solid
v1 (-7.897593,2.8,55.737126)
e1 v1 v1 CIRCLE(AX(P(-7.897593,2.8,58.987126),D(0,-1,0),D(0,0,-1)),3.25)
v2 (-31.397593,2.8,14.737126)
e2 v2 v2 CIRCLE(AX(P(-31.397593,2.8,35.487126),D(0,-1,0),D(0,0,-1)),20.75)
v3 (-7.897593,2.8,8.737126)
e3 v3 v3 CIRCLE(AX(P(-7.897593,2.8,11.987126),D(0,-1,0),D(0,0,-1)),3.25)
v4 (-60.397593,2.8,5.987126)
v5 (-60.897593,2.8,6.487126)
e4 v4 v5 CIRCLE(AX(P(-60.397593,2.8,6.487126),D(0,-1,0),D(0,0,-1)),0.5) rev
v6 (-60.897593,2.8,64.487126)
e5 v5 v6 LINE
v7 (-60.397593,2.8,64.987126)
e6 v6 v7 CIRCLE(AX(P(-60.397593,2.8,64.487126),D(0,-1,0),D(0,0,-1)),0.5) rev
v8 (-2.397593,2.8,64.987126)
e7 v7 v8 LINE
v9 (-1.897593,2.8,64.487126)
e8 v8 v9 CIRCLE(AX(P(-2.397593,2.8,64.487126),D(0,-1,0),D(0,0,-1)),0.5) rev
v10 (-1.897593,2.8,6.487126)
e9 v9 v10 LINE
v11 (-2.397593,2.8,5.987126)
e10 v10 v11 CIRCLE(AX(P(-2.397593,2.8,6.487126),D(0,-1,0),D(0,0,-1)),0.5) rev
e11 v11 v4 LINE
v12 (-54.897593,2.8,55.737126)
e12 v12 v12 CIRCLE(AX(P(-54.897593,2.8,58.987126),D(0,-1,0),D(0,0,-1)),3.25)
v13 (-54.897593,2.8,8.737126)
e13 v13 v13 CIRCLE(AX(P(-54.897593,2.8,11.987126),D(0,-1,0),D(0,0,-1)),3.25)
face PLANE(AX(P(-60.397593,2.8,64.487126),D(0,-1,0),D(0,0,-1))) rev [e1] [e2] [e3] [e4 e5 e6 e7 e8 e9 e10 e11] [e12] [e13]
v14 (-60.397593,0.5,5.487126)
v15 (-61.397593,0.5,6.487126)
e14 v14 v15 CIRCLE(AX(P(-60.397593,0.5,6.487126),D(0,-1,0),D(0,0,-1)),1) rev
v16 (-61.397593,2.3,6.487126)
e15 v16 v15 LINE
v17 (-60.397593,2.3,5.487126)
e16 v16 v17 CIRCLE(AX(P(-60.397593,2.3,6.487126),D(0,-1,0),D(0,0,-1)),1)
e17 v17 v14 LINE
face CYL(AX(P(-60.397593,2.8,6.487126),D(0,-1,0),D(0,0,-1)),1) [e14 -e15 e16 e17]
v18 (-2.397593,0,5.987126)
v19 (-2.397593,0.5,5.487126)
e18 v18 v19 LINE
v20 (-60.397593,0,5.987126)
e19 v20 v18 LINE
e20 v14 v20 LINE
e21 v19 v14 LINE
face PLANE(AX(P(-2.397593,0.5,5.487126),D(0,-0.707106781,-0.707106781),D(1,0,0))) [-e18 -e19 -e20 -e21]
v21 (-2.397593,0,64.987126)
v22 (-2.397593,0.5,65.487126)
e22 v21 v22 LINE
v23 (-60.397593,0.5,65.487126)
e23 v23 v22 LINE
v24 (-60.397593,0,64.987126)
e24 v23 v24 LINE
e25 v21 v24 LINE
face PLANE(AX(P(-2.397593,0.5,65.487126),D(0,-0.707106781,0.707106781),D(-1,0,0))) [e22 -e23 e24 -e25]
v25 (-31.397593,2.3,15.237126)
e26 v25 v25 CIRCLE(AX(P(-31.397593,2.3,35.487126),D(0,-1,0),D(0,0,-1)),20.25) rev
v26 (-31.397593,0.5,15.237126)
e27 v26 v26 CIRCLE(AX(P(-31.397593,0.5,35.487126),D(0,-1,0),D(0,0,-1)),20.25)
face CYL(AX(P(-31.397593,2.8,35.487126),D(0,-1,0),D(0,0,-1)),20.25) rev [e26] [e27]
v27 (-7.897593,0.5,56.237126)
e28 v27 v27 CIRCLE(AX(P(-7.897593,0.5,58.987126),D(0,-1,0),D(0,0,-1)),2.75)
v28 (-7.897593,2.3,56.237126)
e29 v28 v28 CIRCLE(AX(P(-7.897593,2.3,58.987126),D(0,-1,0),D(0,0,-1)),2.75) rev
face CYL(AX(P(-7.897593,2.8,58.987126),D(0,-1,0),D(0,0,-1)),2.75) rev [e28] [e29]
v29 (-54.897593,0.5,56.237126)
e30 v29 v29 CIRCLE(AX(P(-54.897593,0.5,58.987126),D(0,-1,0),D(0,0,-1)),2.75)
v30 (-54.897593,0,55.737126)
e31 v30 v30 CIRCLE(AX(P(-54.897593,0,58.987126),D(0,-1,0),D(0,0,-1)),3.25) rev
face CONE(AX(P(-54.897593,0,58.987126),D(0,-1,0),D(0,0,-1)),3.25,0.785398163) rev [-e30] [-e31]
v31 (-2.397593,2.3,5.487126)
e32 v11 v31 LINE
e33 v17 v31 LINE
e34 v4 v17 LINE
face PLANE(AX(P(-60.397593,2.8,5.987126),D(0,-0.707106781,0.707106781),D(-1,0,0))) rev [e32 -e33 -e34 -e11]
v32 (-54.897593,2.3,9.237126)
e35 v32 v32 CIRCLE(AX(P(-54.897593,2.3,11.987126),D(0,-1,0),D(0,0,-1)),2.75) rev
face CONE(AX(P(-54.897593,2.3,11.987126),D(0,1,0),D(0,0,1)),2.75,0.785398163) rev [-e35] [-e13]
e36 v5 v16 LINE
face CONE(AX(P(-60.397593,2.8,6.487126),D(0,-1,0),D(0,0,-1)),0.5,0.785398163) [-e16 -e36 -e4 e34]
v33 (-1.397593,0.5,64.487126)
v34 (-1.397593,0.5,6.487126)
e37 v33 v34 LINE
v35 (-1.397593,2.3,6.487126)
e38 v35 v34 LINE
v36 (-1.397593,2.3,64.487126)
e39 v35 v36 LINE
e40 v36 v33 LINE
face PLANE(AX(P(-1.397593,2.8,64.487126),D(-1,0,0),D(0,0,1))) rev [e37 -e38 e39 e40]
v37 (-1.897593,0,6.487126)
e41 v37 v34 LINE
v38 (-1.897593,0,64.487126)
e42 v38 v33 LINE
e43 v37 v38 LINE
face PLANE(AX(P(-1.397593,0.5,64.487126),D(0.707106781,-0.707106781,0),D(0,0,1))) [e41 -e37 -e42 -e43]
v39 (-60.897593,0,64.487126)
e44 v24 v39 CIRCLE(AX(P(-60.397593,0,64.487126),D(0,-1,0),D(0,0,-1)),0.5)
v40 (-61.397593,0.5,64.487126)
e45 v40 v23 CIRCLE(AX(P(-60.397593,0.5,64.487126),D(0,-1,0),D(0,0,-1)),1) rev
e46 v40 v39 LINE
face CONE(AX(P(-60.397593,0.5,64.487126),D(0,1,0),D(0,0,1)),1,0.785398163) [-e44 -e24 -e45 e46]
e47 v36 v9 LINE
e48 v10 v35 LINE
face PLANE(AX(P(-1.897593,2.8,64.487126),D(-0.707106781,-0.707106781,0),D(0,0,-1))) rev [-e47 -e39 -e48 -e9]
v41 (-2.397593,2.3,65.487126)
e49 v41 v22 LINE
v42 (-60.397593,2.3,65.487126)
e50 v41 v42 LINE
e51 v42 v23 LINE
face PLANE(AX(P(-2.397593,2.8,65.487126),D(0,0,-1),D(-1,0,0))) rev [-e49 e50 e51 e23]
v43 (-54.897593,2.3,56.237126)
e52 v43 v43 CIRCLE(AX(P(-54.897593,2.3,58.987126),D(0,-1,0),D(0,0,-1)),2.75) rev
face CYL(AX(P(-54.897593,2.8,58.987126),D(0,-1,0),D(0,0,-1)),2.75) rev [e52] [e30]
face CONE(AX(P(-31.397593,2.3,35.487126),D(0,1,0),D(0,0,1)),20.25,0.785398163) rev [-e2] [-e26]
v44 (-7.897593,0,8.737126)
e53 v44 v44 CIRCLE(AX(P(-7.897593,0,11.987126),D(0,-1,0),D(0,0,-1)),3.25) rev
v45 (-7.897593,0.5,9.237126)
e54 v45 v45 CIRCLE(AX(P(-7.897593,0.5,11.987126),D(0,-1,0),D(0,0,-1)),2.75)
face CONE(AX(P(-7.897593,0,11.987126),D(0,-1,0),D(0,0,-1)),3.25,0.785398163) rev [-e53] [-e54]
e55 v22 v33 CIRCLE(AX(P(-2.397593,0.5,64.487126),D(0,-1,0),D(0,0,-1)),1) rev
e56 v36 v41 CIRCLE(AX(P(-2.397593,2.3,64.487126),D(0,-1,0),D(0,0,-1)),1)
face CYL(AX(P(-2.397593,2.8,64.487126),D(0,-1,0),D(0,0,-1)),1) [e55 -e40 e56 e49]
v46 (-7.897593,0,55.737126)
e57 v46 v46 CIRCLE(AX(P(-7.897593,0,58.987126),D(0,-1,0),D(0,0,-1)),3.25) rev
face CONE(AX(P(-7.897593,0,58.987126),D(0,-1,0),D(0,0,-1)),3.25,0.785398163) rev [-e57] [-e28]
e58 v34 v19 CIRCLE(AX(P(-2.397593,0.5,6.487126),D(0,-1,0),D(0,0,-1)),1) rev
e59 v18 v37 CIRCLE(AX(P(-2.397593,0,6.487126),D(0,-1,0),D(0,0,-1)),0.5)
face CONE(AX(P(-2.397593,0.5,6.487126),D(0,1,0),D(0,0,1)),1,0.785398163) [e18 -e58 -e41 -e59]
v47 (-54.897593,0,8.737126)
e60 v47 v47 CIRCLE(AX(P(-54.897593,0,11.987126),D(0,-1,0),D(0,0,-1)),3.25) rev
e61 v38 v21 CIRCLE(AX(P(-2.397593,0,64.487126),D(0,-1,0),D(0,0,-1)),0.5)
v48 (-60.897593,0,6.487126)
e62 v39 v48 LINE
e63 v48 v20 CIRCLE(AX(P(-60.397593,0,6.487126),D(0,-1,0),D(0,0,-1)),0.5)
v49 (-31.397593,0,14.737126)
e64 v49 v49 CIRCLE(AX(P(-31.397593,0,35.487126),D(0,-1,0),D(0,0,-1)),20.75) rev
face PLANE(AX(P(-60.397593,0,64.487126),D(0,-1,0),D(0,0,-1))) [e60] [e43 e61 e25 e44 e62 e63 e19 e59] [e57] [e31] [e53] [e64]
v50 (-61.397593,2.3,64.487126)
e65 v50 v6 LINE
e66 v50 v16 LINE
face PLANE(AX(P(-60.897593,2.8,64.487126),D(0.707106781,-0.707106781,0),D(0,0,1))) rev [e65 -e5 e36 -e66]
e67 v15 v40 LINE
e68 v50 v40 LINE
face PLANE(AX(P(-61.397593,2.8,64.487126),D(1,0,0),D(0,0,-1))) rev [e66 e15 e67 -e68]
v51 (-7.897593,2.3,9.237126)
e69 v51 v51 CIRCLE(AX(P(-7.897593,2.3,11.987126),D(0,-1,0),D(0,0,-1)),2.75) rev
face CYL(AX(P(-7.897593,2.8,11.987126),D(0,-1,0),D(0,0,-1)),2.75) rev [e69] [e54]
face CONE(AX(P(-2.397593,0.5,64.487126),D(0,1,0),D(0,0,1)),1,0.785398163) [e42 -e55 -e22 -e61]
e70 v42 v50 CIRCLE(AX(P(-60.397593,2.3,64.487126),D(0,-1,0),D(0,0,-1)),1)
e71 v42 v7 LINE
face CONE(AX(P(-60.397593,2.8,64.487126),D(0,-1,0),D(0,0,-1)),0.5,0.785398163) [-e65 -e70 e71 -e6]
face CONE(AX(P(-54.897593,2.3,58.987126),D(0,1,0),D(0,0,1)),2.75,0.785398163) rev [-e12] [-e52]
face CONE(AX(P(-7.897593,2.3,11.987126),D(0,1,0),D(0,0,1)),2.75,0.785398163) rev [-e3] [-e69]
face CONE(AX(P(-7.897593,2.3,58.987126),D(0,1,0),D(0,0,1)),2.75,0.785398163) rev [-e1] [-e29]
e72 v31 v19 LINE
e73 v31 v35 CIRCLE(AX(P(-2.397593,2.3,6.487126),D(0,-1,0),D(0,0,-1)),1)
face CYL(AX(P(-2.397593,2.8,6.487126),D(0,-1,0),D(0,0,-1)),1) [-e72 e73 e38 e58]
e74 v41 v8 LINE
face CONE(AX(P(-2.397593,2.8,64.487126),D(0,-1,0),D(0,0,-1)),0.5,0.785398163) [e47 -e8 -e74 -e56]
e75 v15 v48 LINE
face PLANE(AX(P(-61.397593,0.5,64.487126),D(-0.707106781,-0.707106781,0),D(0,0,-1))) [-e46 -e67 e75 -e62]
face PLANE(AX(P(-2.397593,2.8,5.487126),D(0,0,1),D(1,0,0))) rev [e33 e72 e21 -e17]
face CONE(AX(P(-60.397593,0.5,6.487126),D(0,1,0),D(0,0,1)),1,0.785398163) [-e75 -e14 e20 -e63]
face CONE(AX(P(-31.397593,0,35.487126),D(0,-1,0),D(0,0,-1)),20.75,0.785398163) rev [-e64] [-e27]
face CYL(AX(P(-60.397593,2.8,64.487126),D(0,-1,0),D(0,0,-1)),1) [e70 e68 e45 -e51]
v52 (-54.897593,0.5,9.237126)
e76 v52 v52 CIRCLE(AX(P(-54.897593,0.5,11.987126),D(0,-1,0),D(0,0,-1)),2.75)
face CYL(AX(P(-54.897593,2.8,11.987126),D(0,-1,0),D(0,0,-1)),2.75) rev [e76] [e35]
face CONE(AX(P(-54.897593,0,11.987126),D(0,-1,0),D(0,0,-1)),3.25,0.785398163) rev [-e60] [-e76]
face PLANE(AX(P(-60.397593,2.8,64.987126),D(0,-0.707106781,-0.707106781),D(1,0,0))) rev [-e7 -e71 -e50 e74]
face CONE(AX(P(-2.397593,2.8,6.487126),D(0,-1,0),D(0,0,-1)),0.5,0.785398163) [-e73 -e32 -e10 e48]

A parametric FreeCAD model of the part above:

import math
import FreeCAD as App
import Part
import Sketcher
from FreeCAD import Vector
Q = App.Units.Quantity


def edges_at(feature, points):
    """Names of the edges that pass closest to the given points."""
    edges = feature.Shape.Edges
    near = lambda p: min(range(len(edges)), key=lambda i: edges[i].distToShape(Part.Vertex(*p))[0])
    return sorted({f"Edge{near(p) + 1}" for p in points})

doc = App.newDocument("Part")
body = doc.addObject("PartDesign::Body", "Body")

# Sketch on XZ plane
sketch1 = doc.addObject("Sketcher::SketchObject", "Sketch")
body.addObject(sketch1)
sketch1.AttachmentSupport = (doc.XZ_Plane, [""])
sketch1.MapMode = "FlatFace"
sketch1.addGeometry([
    Part.LineSegment(Vector(-60.4, 65.5, 0), Vector(-2.4, 65.5, 0)),  # 0
    Part.ArcOfCircle(Part.Circle(Vector(-2.4, 64.5, 0), Vector(0, 0, 1), 1), math.radians(0), math.radians(90)),  # 1
    Part.LineSegment(Vector(-1.4, 64.5, 0), Vector(-1.4, 6.5, 0)),  # 2
    Part.ArcOfCircle(Part.Circle(Vector(-2.4, 6.5, 0), Vector(0, 0, 1), 1), math.radians(-90), math.radians(0)),  # 3
    Part.LineSegment(Vector(-2.4, 5.5, 0), Vector(-60.4, 5.5, 0)),  # 4
    Part.ArcOfCircle(Part.Circle(Vector(-60.4, 6.5, 0), Vector(0, 0, 1), 1), math.radians(180), math.radians(270)),  # 5
    Part.LineSegment(Vector(-61.4, 6.5, 0), Vector(-61.4, 64.5, 0)),  # 6
    Part.ArcOfCircle(Part.Circle(Vector(-60.4, 64.5, 0), Vector(0, 0, 1), 1), math.radians(90), math.radians(180)),  # 7
    Part.Circle(Vector(-7.9, 59, 0), Vector(0, 0, 1), 2.8),  # 8
    Part.Circle(Vector(-54.9, 59, 0), Vector(0, 0, 1), 2.8),  # 9
    Part.Circle(Vector(-7.9, 12, 0), Vector(0, 0, 1), 2.8),  # 10
    Part.Circle(Vector(-31.4, 35.5, 0), Vector(0, 0, 1), 20.2),  # 11
    Part.Circle(Vector(-54.9, 12, 0), Vector(0, 0, 1), 2.8),  # 12
], False)
sketch1.addConstraint([
    Sketcher.Constraint("Tangent", 0, 2, 1, 2),
    Sketcher.Constraint("Tangent", 1, 1, 2, 1),
    Sketcher.Constraint("Tangent", 2, 2, 3, 2),
    Sketcher.Constraint("Tangent", 3, 1, 4, 1),
    Sketcher.Constraint("Tangent", 4, 2, 5, 2),
    Sketcher.Constraint("Tangent", 5, 1, 6, 1),
    Sketcher.Constraint("Tangent", 6, 2, 7, 2),
    Sketcher.Constraint("Tangent", 7, 1, 0, 1),
    Sketcher.Constraint("Horizontal", 0),
    Sketcher.Constraint("Vertical", 2),
    Sketcher.Constraint("Horizontal", 4),
    Sketcher.Constraint("Vertical", 6),
    Sketcher.Constraint("Equal", 1, 3),
    Sketcher.Constraint("Equal", 3, 5),
    Sketcher.Constraint("Equal", 5, 7),
    Sketcher.Constraint("Equal", 8, 9),
    Sketcher.Constraint("Equal", 9, 10),
    Sketcher.Constraint("Equal", 10, 12),
    Sketcher.Constraint("Horizontal", 8, 3, 9, 3),
    Sketcher.Constraint("Horizontal", 10, 3, 12, 3),
    Sketcher.Constraint("Vertical", 8, 3, 10, 3),
    Sketcher.Constraint("Vertical", 9, 3, 12, 3),
    Sketcher.Constraint("Equal", 4, 2),
    Sketcher.Constraint("Radius", 1, Q("1 mm")),
    Sketcher.Constraint("Diameter", 8, Q("5.5 mm")),
    Sketcher.Constraint("Diameter", 11, Q("40.5 mm")),
    Sketcher.Constraint("DistanceX", 0, 1, 0, 2, Q("58 mm")),
    Sketcher.Constraint("DistanceX", 9, 3, 8, 3, Q("47 mm")),
    Sketcher.Constraint("DistanceY", 10, 3, 8, 3, Q("47 mm")),
    Sketcher.Constraint("DistanceX", 11, 3, 3, 3, Q("29 mm")),
    Sketcher.Constraint("DistanceY", 3, 3, 11, 3, Q("29 mm")),
    Sketcher.Constraint("DistanceX", 8, 3, 1, 3, Q("5.5 mm")),
    Sketcher.Constraint("DistanceY", 8, 3, 1, 3, Q("5.5 mm")),
    Sketcher.Constraint("DistanceX", 1, 3, -1, 1, Q("2.397593 mm")),
    Sketcher.Constraint("DistanceY", -1, 1, 1, 3, Q("64.487126 mm")),
])
pad1 = doc.addObject("PartDesign::Pad", "Pad")
body.addObject(pad1)
pad1.Profile = sketch1
pad1.Length = 2.8
pad1.Reversed = True
doc.recompute()

chamfer = doc.addObject("PartDesign::Chamfer", "Chamfer")
body.addObject(chamfer)
chamfer.Base = (pad1, edges_at(pad1, [
    (-1.398, 0, 35.487),
    (-1.69, 0, 65.194),
    (-31.398, 0, 65.487),
    (-61.105, 0, 65.194),
    (-1.69, 2.8, 65.194),
    (-1.398, 2.8, 35.487),
    (-1.69, 2.8, 5.78),
    (-51.648, 0, 35.487),
    (-51.648, 2.8, 35.487),
    (-31.398, 2.8, 5.487),
    (-57.648, 0, 11.987),
    (-57.648, 2.8, 11.987),
    (-61.105, 2.8, 5.78),
    (-10.648, 0, 11.987),
    (-10.648, 2.8, 11.987),
    (-61.398, 2.8, 35.487),
    (-10.648, 0, 58.987),
    (-10.648, 2.8, 58.987),
    (-57.648, 0, 58.987),
    (-57.648, 2.8, 58.987),
    (-61.105, 2.8, 65.194),
    (-61.398, 0, 35.487),
    (-31.398, 2.8, 65.487),
    (-61.105, 0, 5.78),
    (-31.398, 0, 5.487),
    (-1.69, 0, 5.78),
]))
chamfer.Size = 0.5

doc.recompute()
